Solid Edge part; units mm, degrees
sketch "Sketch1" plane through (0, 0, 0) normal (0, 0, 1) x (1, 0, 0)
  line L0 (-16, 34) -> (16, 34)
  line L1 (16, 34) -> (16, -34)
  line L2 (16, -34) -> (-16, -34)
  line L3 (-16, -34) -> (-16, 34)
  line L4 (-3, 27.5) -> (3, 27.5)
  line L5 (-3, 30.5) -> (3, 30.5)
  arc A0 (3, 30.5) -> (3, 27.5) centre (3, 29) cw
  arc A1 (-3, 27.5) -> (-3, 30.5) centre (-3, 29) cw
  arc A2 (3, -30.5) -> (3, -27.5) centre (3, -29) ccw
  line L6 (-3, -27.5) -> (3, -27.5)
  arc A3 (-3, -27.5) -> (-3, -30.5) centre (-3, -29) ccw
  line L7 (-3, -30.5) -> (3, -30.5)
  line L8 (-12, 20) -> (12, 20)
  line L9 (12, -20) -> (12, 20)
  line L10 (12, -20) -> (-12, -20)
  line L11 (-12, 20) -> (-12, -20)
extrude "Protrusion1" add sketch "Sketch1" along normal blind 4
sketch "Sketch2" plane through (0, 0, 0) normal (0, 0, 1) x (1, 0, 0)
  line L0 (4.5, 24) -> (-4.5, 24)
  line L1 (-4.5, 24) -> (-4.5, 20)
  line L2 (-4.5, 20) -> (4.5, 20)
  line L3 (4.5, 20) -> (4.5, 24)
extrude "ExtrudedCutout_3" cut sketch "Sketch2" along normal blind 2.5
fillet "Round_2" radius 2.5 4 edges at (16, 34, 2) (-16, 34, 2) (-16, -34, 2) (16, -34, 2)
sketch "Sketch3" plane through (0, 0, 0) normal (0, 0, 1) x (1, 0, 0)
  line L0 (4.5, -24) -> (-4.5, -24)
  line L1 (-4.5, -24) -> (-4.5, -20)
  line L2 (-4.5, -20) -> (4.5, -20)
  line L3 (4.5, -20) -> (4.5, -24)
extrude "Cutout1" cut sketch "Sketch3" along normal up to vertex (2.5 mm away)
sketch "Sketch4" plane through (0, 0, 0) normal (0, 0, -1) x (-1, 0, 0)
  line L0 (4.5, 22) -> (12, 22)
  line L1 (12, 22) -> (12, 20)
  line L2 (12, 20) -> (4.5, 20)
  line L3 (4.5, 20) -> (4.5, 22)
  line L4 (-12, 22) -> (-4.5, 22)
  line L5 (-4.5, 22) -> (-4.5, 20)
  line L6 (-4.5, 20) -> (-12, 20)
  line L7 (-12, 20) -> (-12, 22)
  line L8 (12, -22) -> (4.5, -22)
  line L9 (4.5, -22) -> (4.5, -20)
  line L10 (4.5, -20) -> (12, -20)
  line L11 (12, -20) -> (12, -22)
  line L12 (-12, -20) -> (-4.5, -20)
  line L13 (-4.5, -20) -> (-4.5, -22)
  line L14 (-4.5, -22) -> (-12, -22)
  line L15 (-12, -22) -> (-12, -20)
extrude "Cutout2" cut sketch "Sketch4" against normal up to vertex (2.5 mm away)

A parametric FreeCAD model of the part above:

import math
import FreeCAD as App
import Part
import Sketcher
from FreeCAD import Vector
Q = App.Units.Quantity


def edges_at(feature, points):
    """Names of the edges that pass closest to the given points."""
    edges = feature.Shape.Edges
    near = lambda p: min(range(len(edges)), key=lambda i: edges[i].distToShape(Part.Vertex(*p))[0])
    return sorted({f"Edge{near(p) + 1}" for p in points})


def add_polygon(sketch, points):
    """Adds a closed chain of lines whose ends are joined by coincident constraints."""
    first, n = sketch.GeometryCount, len(points)
    for a, b in zip(points, points[1:] + points[:1]):
        sketch.addGeometry(Part.LineSegment(App.Vector(*a, 0), App.Vector(*b, 0)), False)
    for i in range(n):
        sketch.addConstraint(Sketcher.Constraint("Coincident", first + i, 2, first + (i + 1) % n, 1))

doc = App.newDocument("Part")
params = doc.addObject("Spreadsheet::Sheet", "Params")
for row, (alias, value) in enumerate([
    ("sketch1_radius", "1.5 mm"),
    ("sketch1_width", "32 mm"),
    ("sketch1_width2", "6 mm"),
    ("sketch1_width3", "24 mm"),
    ("sketch1_height", "68 mm"),
    ("pad1_length", "4 mm"),
    ("sketch2_width", "9 mm"),
    ("sketch2_height", "4 mm"),
    ("pocket1_length", "2.5 mm"),
    ("fillet_radius", "2.5 mm"),
    ("sketch3_width", "9 mm"),
    ("sketch3_height", "4 mm"),
    ("pocket2_length", "2.5 mm"),
    ("sketch4_height", "2 mm"),
    ("sketch4_width", "7.5 mm"),
    ("pocket3_length", "2.5 mm"),
], start=1):
    params.set(f"A{row}", alias)
    params.set(f"B{row}", "=" + value)
    params.setAlias(f"B{row}", alias)

body = doc.addObject("PartDesign::Body", "Body")

# Sketch on XY plane
sketch1 = body.newObject("Sketcher::SketchObject", "Sketch")
sketch1.AttachmentSupport = (doc.getObject("XY_Plane"), [""])
sketch1.MapMode = "FlatFace"
add_polygon(sketch1, [(16, 34), (-16, 34), (-16, -34), (16, -34)])  # lines 0-3
sketch1.addGeometry(Part.ArcOfCircle(Part.Circle(Vector(3, -29, 0), Vector(0, 0, 1), 1.5), math.radians(-90), math.radians(90)), False)  # 4
sketch1.addGeometry(Part.LineSegment(Vector(3, -30.5, 0), Vector(-3, -30.5, 0)), False)  # 5
sketch1.addGeometry(Part.ArcOfCircle(Part.Circle(Vector(-3, -29, 0), Vector(0, 0, 1), 1.5), math.radians(90), math.radians(270)), False)  # 6
sketch1.addGeometry(Part.LineSegment(Vector(-3, -27.5, 0), Vector(3, -27.5, 0)), False)  # 7
add_polygon(sketch1, [(-12, -20), (-12, 20), (12, 20), (12, -20)])  # lines 8-11
sketch1.addGeometry(Part.LineSegment(Vector(3, 27.5, 0), Vector(-3, 27.5, 0)), False)  # 12
sketch1.addGeometry(Part.ArcOfCircle(Part.Circle(Vector(-3, 29, 0), Vector(0, 0, 1), 1.5), math.radians(90), math.radians(270)), False)  # 13
sketch1.addGeometry(Part.LineSegment(Vector(-3, 30.5, 0), Vector(3, 30.5, 0)), False)  # 14
sketch1.addGeometry(Part.ArcOfCircle(Part.Circle(Vector(3, 29, 0), Vector(0, 0, 1), 1.5), math.radians(-90), math.radians(90)), False)  # 15
sketch1.addConstraint(Sketcher.Constraint("Tangent", 4, 1, 5, 1))
sketch1.addConstraint(Sketcher.Constraint("Tangent", 5, 2, 6, 2))
sketch1.addConstraint(Sketcher.Constraint("Tangent", 6, 1, 7, 1))
sketch1.addConstraint(Sketcher.Constraint("Tangent", 7, 2, 4, 2))
sketch1.addConstraint(Sketcher.Constraint("Tangent", 12, 2, 13, 2))
sketch1.addConstraint(Sketcher.Constraint("Tangent", 13, 1, 14, 1))
sketch1.addConstraint(Sketcher.Constraint("Tangent", 14, 2, 15, 2))
sketch1.addConstraint(Sketcher.Constraint("Tangent", 15, 1, 12, 1))
sketch1.addConstraint(Sketcher.Constraint("Horizontal", 0))
sketch1.addConstraint(Sketcher.Constraint("Vertical", 1))
sketch1.addConstraint(Sketcher.Constraint("Horizontal", 2))
sketch1.addConstraint(Sketcher.Constraint("Vertical", 3))
sketch1.addConstraint(Sketcher.Constraint("Horizontal", 5))
sketch1.addConstraint(Sketcher.Constraint("Horizontal", 7))
sketch1.addConstraint(Sketcher.Constraint("Vertical", 8))
sketch1.addConstraint(Sketcher.Constraint("Horizontal", 9))
sketch1.addConstraint(Sketcher.Constraint("Vertical", 10))
sketch1.addConstraint(Sketcher.Constraint("Horizontal", 11))
sketch1.addConstraint(Sketcher.Constraint("Horizontal", 12))
sketch1.addConstraint(Sketcher.Constraint("Horizontal", 14))
sketch1.addConstraint(Sketcher.Constraint("Equal", 6, 13))
sketch1.addConstraint(Sketcher.Constraint("Symmetric", 4, 3, 13, 3, -1, 1))
sketch1.addConstraint(Sketcher.Constraint("Symmetric", 0, 2, 2, 2, -1, 1))
sketch1.addConstraint(Sketcher.Constraint("Symmetric", 8, 2, 10, 2, -1, 1))
sketch1.addConstraint(Sketcher.Constraint("Vertical", 6, 3, 13, 3))
sketch1.addConstraint(Sketcher.Constraint("Vertical", 4, 3, 15, 3))
sketch1.addConstraint(Sketcher.Constraint("Radius", 4, Q("1.5 mm")))
sketch1.addConstraint(Sketcher.Constraint("DistanceX", 0, 2, 0, 1, Q("32 mm")))
sketch1.addConstraint(Sketcher.Constraint("DistanceX", 5, 2, 5, 1, Q("6 mm")))
sketch1.addConstraint(Sketcher.Constraint("DistanceX", 9, 1, 9, 2, Q("24 mm")))
sketch1.addConstraint(Sketcher.Constraint("DistanceY", 1, 2, 1, 1, Q("68 mm")))
sketch1.addConstraint(Sketcher.Constraint("DistanceY", 8, 1, 8, 2, Q("40 mm")))
sketch1.addConstraint(Sketcher.Constraint("DistanceY", 4, 3, -1, 1, Q("29 mm")))
sketch1.setExpression("Constraints[34]", "Params.sketch1_radius")
sketch1.setExpression("Constraints[35]", "Params.sketch1_width")
sketch1.setExpression("Constraints[36]", "Params.sketch1_width2")
sketch1.setExpression("Constraints[37]", "Params.sketch1_width3")
sketch1.setExpression("Constraints[38]", "Params.sketch1_height")
pad1 = body.newObject("PartDesign::Pad", "Pad")
pad1.Profile = sketch1
pad1.setExpression("Length", "Params.pad1_length")

# Sketch on XY plane
sketch2 = body.newObject("Sketcher::SketchObject", "Sketch001")
sketch2.AttachmentSupport = (doc.getObject("XY_Plane"), [""])
sketch2.MapMode = "FlatFace"
add_polygon(sketch2, [(4.5, 20), (4.5, 24), (-4.5, 24), (-4.5, 20)])  # lines 0-3
sketch2.addConstraint(Sketcher.Constraint("Vertical", 0))
sketch2.addConstraint(Sketcher.Constraint("Horizontal", 1))
sketch2.addConstraint(Sketcher.Constraint("Vertical", 2))
sketch2.addConstraint(Sketcher.Constraint("Horizontal", 3))
sketch2.addConstraint(Sketcher.Constraint("DistanceX", 1, 2, 1, 1, Q("9 mm")))
sketch2.addConstraint(Sketcher.Constraint("DistanceY", 0, 1, 0, 2, Q("4 mm")))
sketch2.addConstraint(Sketcher.Constraint("DistanceY", -1, 1, 0, 2, Q("24 mm")))
sketch2.addConstraint(Sketcher.Constraint("DistanceX", -1, 1, 0, 2, Q("4.5 mm")))
sketch2.setExpression("Constraints[8]", "Params.sketch2_width")
sketch2.setExpression("Constraints[9]", "Params.sketch2_height")
pocket1 = body.newObject("PartDesign::Pocket", "Pocket")
pocket1.Profile = sketch2
pocket1.setExpression("Length", "Params.pocket1_length")
pocket1.Reversed = True
doc.recompute()

fillet = body.newObject("PartDesign::Fillet", "Fillet")
fillet.Base = (pocket1, edges_at(pocket1, [
    (16, 34, 2),
    (-16, 34, 2),
    (-16, -34, 2),
    (16, -34, 2),
]))
fillet.setExpression("Radius", "Params.fillet_radius")

# Sketch on XY plane
sketch3 = body.newObject("Sketcher::SketchObject", "Sketch002")
sketch3.AttachmentSupport = (doc.getObject("XY_Plane"), [""])
sketch3.MapMode = "FlatFace"
add_polygon(sketch3, [(-4.5, -24), (4.5, -24), (4.5, -20), (-4.5, -20)])  # lines 0-3
sketch3.addConstraint(Sketcher.Constraint("Horizontal", 0))
sketch3.addConstraint(Sketcher.Constraint("Vertical", 1))
sketch3.addConstraint(Sketcher.Constraint("Horizontal", 2))
sketch3.addConstraint(Sketcher.Constraint("Vertical", 3))
sketch3.addConstraint(Sketcher.Constraint("DistanceX", 0, 1, 0, 2, Q("9 mm")))
sketch3.addConstraint(Sketcher.Constraint("DistanceY", 1, 1, 1, 2, Q("4 mm")))
sketch3.addConstraint(Sketcher.Constraint("DistanceY", 0, 2, -1, 1, Q("24 mm")))
sketch3.addConstraint(Sketcher.Constraint("DistanceX", -1, 1, 0, 2, Q("4.5 mm")))
sketch3.setExpression("Constraints[8]", "Params.sketch3_width")
sketch3.setExpression("Constraints[9]", "Params.sketch3_height")
pocket2 = body.newObject("PartDesign::Pocket", "Pocket001")
pocket2.Profile = sketch3
pocket2.setExpression("Length", "Params.pocket2_length")
pocket2.Reversed = True

# Sketch on XY plane
sketch4 = body.newObject("Sketcher::SketchObject", "Sketch003")
sketch4.AttachmentSupport = (doc.getObject("XY_Plane"), [""])
sketch4.MapMode = "FlatFace"
add_polygon(sketch4, [(-12, 22), (-4.5, 22), (-4.5, 20), (-12, 20)])  # lines 0-3
add_polygon(sketch4, [(4.5, 22), (12, 22), (12, 20), (4.5, 20)])  # lines 4-7
add_polygon(sketch4, [(-4.5, -22), (-12, -22), (-12, -20), (-4.5, -20)])  # lines 8-11
add_polygon(sketch4, [(4.5, -20), (12, -20), (12, -22), (4.5, -22)])  # lines 12-15
sketch4.addConstraint(Sketcher.Constraint("Horizontal", 0))
sketch4.addConstraint(Sketcher.Constraint("Vertical", 1))
sketch4.addConstraint(Sketcher.Constraint("Horizontal", 2))
sketch4.addConstraint(Sketcher.Constraint("Vertical", 3))
sketch4.addConstraint(Sketcher.Constraint("Horizontal", 4))
sketch4.addConstraint(Sketcher.Constraint("Vertical", 5))
sketch4.addConstraint(Sketcher.Constraint("Horizontal", 6))
sketch4.addConstraint(Sketcher.Constraint("Vertical", 7))
sketch4.addConstraint(Sketcher.Constraint("Horizontal", 8))
sketch4.addConstraint(Sketcher.Constraint("Vertical", 9))
sketch4.addConstraint(Sketcher.Constraint("Horizontal", 10))
sketch4.addConstraint(Sketcher.Constraint("Vertical", 11))
sketch4.addConstraint(Sketcher.Constraint("Horizontal", 12))
sketch4.addConstraint(Sketcher.Constraint("Vertical", 13))
sketch4.addConstraint(Sketcher.Constraint("Horizontal", 14))
sketch4.addConstraint(Sketcher.Constraint("Vertical", 15))
sketch4.addConstraint(Sketcher.Constraint("Symmetric", 4, 2, 8, 2, -1, 1))
sketch4.addConstraint(Sketcher.Constraint("Symmetric", 6, 2, 10, 2, -1, 1))
sketch4.addConstraint(Sketcher.Constraint("Symmetric", 2, 2, 12, 2, -1, 1))
sketch4.addConstraint(Sketcher.Constraint("Symmetric", 0, 2, 14, 2, -1, 1))
sketch4.addConstraint(Sketcher.Constraint("Symmetric", 3, 2, 4, 2, -2))
sketch4.addConstraint(Sketcher.Constraint("Symmetric", 1, 2, 6, 2, -2))
sketch4.addConstraint(Sketcher.Constraint("DistanceY", 1, 2, 1, 1, Q("2 mm")))
sketch4.addConstraint(Sketcher.Constraint("DistanceX", 0, 1, 0, 2, Q("7.5 mm")))
sketch4.addConstraint(Sketcher.Constraint("DistanceY", -1, 1, 0, 2, Q("22 mm")))
sketch4.addConstraint(Sketcher.Constraint("DistanceX", 2, 2, -1, 1, Q("12 mm")))
sketch4.setExpression("Constraints[38]", "Params.sketch4_height")
sketch4.setExpression("Constraints[39]", "Params.sketch4_width")
pocket3 = body.newObject("PartDesign::Pocket", "Pocket002")
pocket3.Profile = sketch4
pocket3.setExpression("Length", "Params.pocket3_length")
pocket3.Reversed = True

doc.recompute()
